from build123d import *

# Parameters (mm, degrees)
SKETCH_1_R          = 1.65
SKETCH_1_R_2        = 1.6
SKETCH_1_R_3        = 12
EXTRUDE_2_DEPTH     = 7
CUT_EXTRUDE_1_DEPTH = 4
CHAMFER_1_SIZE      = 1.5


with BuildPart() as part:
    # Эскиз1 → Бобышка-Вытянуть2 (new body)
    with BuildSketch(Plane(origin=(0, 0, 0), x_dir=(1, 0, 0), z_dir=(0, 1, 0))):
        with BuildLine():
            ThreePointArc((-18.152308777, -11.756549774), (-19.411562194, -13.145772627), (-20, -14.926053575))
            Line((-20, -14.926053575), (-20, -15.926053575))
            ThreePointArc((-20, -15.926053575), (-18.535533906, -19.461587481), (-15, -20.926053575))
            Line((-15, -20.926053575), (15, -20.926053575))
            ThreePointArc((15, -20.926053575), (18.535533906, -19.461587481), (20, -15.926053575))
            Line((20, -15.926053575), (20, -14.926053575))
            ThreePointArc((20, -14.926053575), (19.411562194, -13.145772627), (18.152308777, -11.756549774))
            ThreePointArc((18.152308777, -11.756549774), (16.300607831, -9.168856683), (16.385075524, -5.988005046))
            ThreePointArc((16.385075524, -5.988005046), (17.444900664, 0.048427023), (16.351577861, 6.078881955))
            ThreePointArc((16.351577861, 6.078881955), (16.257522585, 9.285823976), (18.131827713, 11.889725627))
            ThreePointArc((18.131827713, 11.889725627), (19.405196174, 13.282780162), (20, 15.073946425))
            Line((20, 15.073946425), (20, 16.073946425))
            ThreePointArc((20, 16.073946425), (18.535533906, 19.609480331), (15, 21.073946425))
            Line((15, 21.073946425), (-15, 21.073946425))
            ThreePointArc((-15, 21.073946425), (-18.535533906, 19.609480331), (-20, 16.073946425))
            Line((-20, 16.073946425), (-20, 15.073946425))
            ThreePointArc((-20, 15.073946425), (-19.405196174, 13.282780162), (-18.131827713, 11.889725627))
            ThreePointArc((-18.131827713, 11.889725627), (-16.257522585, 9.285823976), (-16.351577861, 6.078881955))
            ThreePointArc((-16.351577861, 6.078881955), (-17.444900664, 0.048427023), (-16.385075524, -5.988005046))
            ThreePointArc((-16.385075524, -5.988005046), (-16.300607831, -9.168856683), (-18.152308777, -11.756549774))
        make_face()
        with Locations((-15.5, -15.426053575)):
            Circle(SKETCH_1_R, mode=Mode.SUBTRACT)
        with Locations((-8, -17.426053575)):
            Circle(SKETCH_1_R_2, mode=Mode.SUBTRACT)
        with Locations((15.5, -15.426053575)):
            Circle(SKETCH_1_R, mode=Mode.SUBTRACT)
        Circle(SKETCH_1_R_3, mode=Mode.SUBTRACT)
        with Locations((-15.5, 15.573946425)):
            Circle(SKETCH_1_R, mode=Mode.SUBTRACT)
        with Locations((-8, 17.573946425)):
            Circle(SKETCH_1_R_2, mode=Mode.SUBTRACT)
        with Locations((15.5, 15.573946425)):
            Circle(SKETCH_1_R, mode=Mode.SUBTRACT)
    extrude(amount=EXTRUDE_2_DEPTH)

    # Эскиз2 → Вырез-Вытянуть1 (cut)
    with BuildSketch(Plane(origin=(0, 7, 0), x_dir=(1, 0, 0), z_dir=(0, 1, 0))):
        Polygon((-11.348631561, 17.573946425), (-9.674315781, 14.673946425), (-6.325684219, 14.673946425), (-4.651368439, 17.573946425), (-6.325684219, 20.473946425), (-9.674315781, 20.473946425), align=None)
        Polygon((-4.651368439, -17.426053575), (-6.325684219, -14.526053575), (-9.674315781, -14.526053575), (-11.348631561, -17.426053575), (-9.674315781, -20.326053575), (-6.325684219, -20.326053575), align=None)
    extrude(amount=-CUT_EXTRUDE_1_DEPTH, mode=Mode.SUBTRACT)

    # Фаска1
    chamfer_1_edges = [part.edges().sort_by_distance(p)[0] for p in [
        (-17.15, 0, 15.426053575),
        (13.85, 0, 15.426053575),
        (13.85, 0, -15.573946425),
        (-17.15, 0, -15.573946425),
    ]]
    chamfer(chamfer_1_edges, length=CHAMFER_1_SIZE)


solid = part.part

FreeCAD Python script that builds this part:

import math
import FreeCAD as App
import Part
import Sketcher
from FreeCAD import Vector
Q = App.Units.Quantity


def edges_at(feature, points):
    """Names of the edges that pass closest to the given points."""
    edges = feature.Shape.Edges
    near = lambda p: min(range(len(edges)), key=lambda i: edges[i].distToShape(Part.Vertex(*p))[0])
    return sorted({f"Edge{near(p) + 1}" for p in points})

doc = App.newDocument("Part")
params = doc.addObject("Spreadsheet::Sheet", "Params")
for row, (alias, value) in enumerate([
    ("sketch1_diameter", "24 mm"),
    ("sketch1_radius", "5 mm"),
    ("sketch1_diameter2", "3.3 mm"),
    ("sketch1_diameter3", "3.2 mm"),
    ("sketch1_width", "30 mm"),
    ("pad1_length", "7 mm"),
    ("pocket1_length", "4 mm"),
    ("chamfer_size", "1.5 mm"),
], start=1):
    params.set(f"A{row}", alias)
    params.set(f"B{row}", "=" + value)
    params.setAlias(f"B{row}", alias)

body = doc.addObject("PartDesign::Body", "Body")

sketch1 = body.newObject("Sketcher::SketchObject", "Sketch")
sketch1.AttachmentSupport = (doc.getObject("XZ_Plane"), [""])
sketch1.MapMode = "FlatFace"
sketch1.addGeometry(Part.ArcOfCircle(Part.Circle(Vector(-15.5, 15.4, 0), Vector(0, 0, 1), 4.5), math.radians(-174), math.radians(-126)), False)
sketch1.addGeometry(Part.LineSegment(Vector(-20, 14.9, 0), Vector(-20, 15.9, 0)), False)
sketch1.addGeometry(Part.ArcOfCircle(Part.Circle(Vector(-15, 15.9, 0), Vector(0, 0, 1), 5), math.radians(90), math.radians(180)), False)
sketch1.addGeometry(Part.LineSegment(Vector(-15, 20.9, 0), Vector(15, 20.9, 0)), False)
sketch1.addGeometry(Part.ArcOfCircle(Part.Circle(Vector(15, 15.9, 0), Vector(0, 0, 1), 5), math.radians(0), math.radians(90)), False)
sketch1.addGeometry(Part.LineSegment(Vector(20, 15.9, 0), Vector(20, 14.9, 0)), False)
sketch1.addGeometry(Part.ArcOfCircle(Part.Circle(Vector(15.5, 15.4, 0), Vector(0, 0, 1), 4.5), math.radians(-54), math.radians(-6)), False)
sketch1.addGeometry(Part.ArcOfCircle(Part.Circle(Vector(21.1, 7.7, 0), Vector(0, 0, 1), 5), math.radians(126), math.radians(200)), False)
sketch1.addGeometry(Part.ArcOfCircle(Part.Circle(Vector(0, 0, 0), Vector(0, 0, 1), 17.4), math.radians(-20), math.radians(20)), False)
sketch1.addGeometry(Part.ArcOfCircle(Part.Circle(Vector(21, -7.8, 0), Vector(0, 0, 1), 5), math.radians(160), math.radians(234)), False)
sketch1.addGeometry(Part.ArcOfCircle(Part.Circle(Vector(15.5, -15.6, 0), Vector(0, 0, 1), 4.5), math.radians(6), math.radians(54)), False)
sketch1.addGeometry(Part.LineSegment(Vector(20, -15.1, 0), Vector(20, -16.1, 0)), False)
sketch1.addGeometry(Part.ArcOfCircle(Part.Circle(Vector(15, -16.1, 0), Vector(0, 0, 1), 5), math.radians(-90), math.radians(0)), False)
sketch1.addGeometry(Part.LineSegment(Vector(15, -21.1, 0), Vector(-15, -21.1, 0)), False)
sketch1.addGeometry(Part.ArcOfCircle(Part.Circle(Vector(-15, -16.1, 0), Vector(0, 0, 1), 5), math.radians(180), math.radians(270)), False)
sketch1.addGeometry(Part.LineSegment(Vector(-20, -16.1, 0), Vector(-20, -15.1, 0)), False)
sketch1.addGeometry(Part.ArcOfCircle(Part.Circle(Vector(-15.5, -15.6, 0), Vector(0, 0, 1), 4.5), math.radians(126), math.radians(174)), False)
sketch1.addGeometry(Part.ArcOfCircle(Part.Circle(Vector(-21, -7.8, 0), Vector(0, 0, 1), 5), math.radians(-54), math.radians(20)), False)
sketch1.addGeometry(Part.ArcOfCircle(Part.Circle(Vector(0, 0, 0), Vector(0, 0, 1), 17.4), math.radians(160), math.radians(200)), False)
sketch1.addGeometry(Part.ArcOfCircle(Part.Circle(Vector(-21.1, 7.7, 0), Vector(0, 0, 1), 5), math.radians(-20), math.radians(54)), False)
sketch1.addGeometry(Part.Circle(Vector(-15.5, 15.4, 0), Vector(0, 0, 1), 1.6), False)
sketch1.addGeometry(Part.Circle(Vector(-8, 17.4, 0), Vector(0, 0, 1), 1.6), False)
sketch1.addGeometry(Part.Circle(Vector(15.5, 15.4, 0), Vector(0, 0, 1), 1.6), False)
sketch1.addGeometry(Part.Circle(Vector(0, 0, 0), Vector(0, 0, 1), 12), False)
sketch1.addGeometry(Part.Circle(Vector(-15.5, -15.6, 0), Vector(0, 0, 1), 1.6), False)
sketch1.addGeometry(Part.Circle(Vector(-8, -17.6, 0), Vector(0, 0, 1), 1.6), False)
sketch1.addGeometry(Part.Circle(Vector(15.5, -15.6, 0), Vector(0, 0, 1), 1.6), False)
sketch1.addConstraint(Sketcher.Constraint("Coincident", 0, 1, 1, 1))
sketch1.addConstraint(Sketcher.Constraint("Tangent", 1, 2, 2, 2))
sketch1.addConstraint(Sketcher.Constraint("Tangent", 2, 1, 3, 1))
sketch1.addConstraint(Sketcher.Constraint("Tangent", 3, 2, 4, 2))
sketch1.addConstraint(Sketcher.Constraint("Tangent", 4, 1, 5, 1))
sketch1.addConstraint(Sketcher.Constraint("Coincident", 5, 2, 6, 2))
sketch1.addConstraint(Sketcher.Constraint("Tangent", 6, 1, 7, 1))
sketch1.addConstraint(Sketcher.Constraint("Tangent", 7, 2, 8, 2))
sketch1.addConstraint(Sketcher.Constraint("Tangent", 8, 1, 9, 1))
sketch1.addConstraint(Sketcher.Constraint("Tangent", 9, 2, 10, 2))
sketch1.addConstraint(Sketcher.Constraint("Coincident", 10, 1, 11, 1))
sketch1.addConstraint(Sketcher.Constraint("Tangent", 11, 2, 12, 2))
sketch1.addConstraint(Sketcher.Constraint("Tangent", 12, 1, 13, 1))
sketch1.addConstraint(Sketcher.Constraint("Tangent", 13, 2, 14, 2))
sketch1.addConstraint(Sketcher.Constraint("Tangent", 14, 1, 15, 1))
sketch1.addConstraint(Sketcher.Constraint("Coincident", 15, 2, 16, 2))
sketch1.addConstraint(Sketcher.Constraint("Tangent", 16, 1, 17, 1))
sketch1.addConstraint(Sketcher.Constraint("Tangent", 17, 2, 18, 2))
sketch1.addConstraint(Sketcher.Constraint("Tangent", 18, 1, 19, 1))
sketch1.addConstraint(Sketcher.Constraint("Tangent", 19, 2, 0, 2))
sketch1.addConstraint(Sketcher.Constraint("Vertical", 1))
sketch1.addConstraint(Sketcher.Constraint("Horizontal", 3))
sketch1.addConstraint(Sketcher.Constraint("Vertical", 5))
sketch1.addConstraint(Sketcher.Constraint("Vertical", 11))
sketch1.addConstraint(Sketcher.Constraint("Horizontal", 13))
sketch1.addConstraint(Sketcher.Constraint("Vertical", 15))
sketch1.addConstraint(Sketcher.Constraint("Coincident", 8, 3, -1, 1))
sketch1.addConstraint(Sketcher.Constraint("Coincident", 18, 3, -1, 1))
sketch1.addConstraint(Sketcher.Constraint("Coincident", 23, 3, -1, 1))
sketch1.addConstraint(Sketcher.Constraint("Coincident", 20, 3, 0, 3))
sketch1.addConstraint(Sketcher.Constraint("Coincident", 22, 3, 6, 3))
sketch1.addConstraint(Sketcher.Constraint("Coincident", 24, 3, 16, 3))
sketch1.addConstraint(Sketcher.Constraint("Coincident", 26, 3, 10, 3))
sketch1.addConstraint(Sketcher.Constraint("Equal", 2, 4))
sketch1.addConstraint(Sketcher.Constraint("Equal", 0, 6))
sketch1.addConstraint(Sketcher.Constraint("Equal", 4, 7))
sketch1.addConstraint(Sketcher.Constraint("Equal", 7, 9))
sketch1.addConstraint(Sketcher.Constraint("Equal", 6, 10))
sketch1.addConstraint(Sketcher.Constraint("Equal", 9, 12))
sketch1.addConstraint(Sketcher.Constraint("Equal", 12, 14))
sketch1.addConstraint(Sketcher.Constraint("Equal", 10, 16))
sketch1.addConstraint(Sketcher.Constraint("Equal", 14, 17))
sketch1.addConstraint(Sketcher.Constraint("Equal", 8, 18))
sketch1.addConstraint(Sketcher.Constraint("Equal", 17, 19))
sketch1.addConstraint(Sketcher.Constraint("Equal", 20, 22))
sketch1.addConstraint(Sketcher.Constraint("Equal", 22, 24))
sketch1.addConstraint(Sketcher.Constraint("Equal", 21, 25))
sketch1.addConstraint(Sketcher.Constraint("Equal", 24, 26))
sketch1.addConstraint(Sketcher.Constraint("Symmetric", 0, 3, 6, 3, -2))
sketch1.addConstraint(Sketcher.Constraint("Symmetric", 10, 3, 16, 3, -2))
sketch1.addConstraint(Sketcher.Constraint("Horizontal", 0, 1, 5, 2))
sketch1.addConstraint(Sketcher.Constraint("Horizontal", 10, 1, 15, 2))
sketch1.addConstraint(Sketcher.Constraint("Vertical", 6, 3, 10, 3))
sketch1.addConstraint(Sketcher.Constraint("Vertical", 4, 3, 12, 3))
sketch1.addConstraint(Sketcher.Constraint("Vertical", 21, 3, 25, 3))
sketch1.addConstraint(Sketcher.Constraint("Equal", 5, 11))
sketch1.addConstraint(Sketcher.Constraint("Diameter", 23, Q("24 mm")))
sketch1.addConstraint(Sketcher.Constraint("Radius", 2, Q("5 mm")))
sketch1.addConstraint(Sketcher.Constraint("Diameter", 20, Q("3.3 mm")))
sketch1.addConstraint(Sketcher.Constraint("Diameter", 21, Q("3.2 mm")))
sketch1.addConstraint(Sketcher.Constraint("DistanceX", 3, 1, 3, 2, Q("30 mm")))
sketch1.addConstraint(Sketcher.Constraint("DistanceY", 1, 1, 1, 2, Q("1 mm")))
sketch1.addConstraint(Sketcher.Constraint("DistanceX", 21, 3, -1, 1, Q("8 mm")))
sketch1.addConstraint(Sketcher.Constraint("DistanceX", 0, 3, 6, 3, Q("31 mm")))
sketch1.addConstraint(Sketcher.Constraint("DistanceY", 10, 3, 6, 3, Q("31 mm")))
sketch1.addConstraint(Sketcher.Constraint("DistanceY", 14, 3, 2, 3, Q("32 mm")))
sketch1.addConstraint(Sketcher.Constraint("DistanceY", 20, 3, 21, 3, Q("2 mm")))
sketch1.addConstraint(Sketcher.Constraint("DistanceY", 25, 3, 24, 3, Q("2 mm")))
sketch1.addConstraint(Sketcher.Constraint("Radius", 8, Q("17.444968 mm")))
sketch1.addConstraint(Sketcher.Constraint("DistanceX", 9, 3, 7, 3, Q("0.043099 mm")))
sketch1.setExpression("Constraints[56]", "Params.sketch1_diameter")
sketch1.setExpression("Constraints[57]", "Params.sketch1_radius")
sketch1.setExpression("Constraints[58]", "Params.sketch1_diameter2")
sketch1.setExpression("Constraints[59]", "Params.sketch1_diameter3")
sketch1.setExpression("Constraints[60]", "Params.sketch1_width")
pad1 = body.newObject("PartDesign::Pad", "Pad")
pad1.Profile = sketch1
pad1.setExpression("Length", "Params.pad1_length")
pad1.Reversed = True

sketch2 = body.newObject("Sketcher::SketchObject", "Sketch001")
sketch2.AttachmentSupport = (doc.getObject("XZ_Plane"), [""])
sketch2.MapMode = "FlatFace"
sketch2.AttachmentOffset = App.Placement(Vector(0, 0, -7), App.Rotation())
sketch2.addGeometry(Part.LineSegment(Vector(-11.3, -17.6, 0), Vector(-9.7, -14.7, 0)), False)
sketch2.addGeometry(Part.LineSegment(Vector(-9.7, -14.7, 0), Vector(-6.3, -14.7, 0)), False)
sketch2.addGeometry(Part.LineSegment(Vector(-6.3, -14.7, 0), Vector(-4.7, -17.6, 0)), False)
sketch2.addGeometry(Part.LineSegment(Vector(-4.7, -17.6, 0), Vector(-6.3, -20.5, 0)), False)
sketch2.addGeometry(Part.LineSegment(Vector(-6.3, -20.5, 0), Vector(-9.7, -20.5, 0)), False)
sketch2.addGeometry(Part.LineSegment(Vector(-9.7, -20.5, 0), Vector(-11.3, -17.6, 0)), False)
sketch2.addGeometry(Part.LineSegment(Vector(-4.7, 17.4, 0), Vector(-6.3, 14.5, 0)), False)
sketch2.addGeometry(Part.LineSegment(Vector(-6.3, 14.5, 0), Vector(-9.7, 14.5, 0)), False)
sketch2.addGeometry(Part.LineSegment(Vector(-9.7, 14.5, 0), Vector(-11.3, 17.4, 0)), False)
sketch2.addGeometry(Part.LineSegment(Vector(-11.3, 17.4, 0), Vector(-9.7, 20.3, 0)), False)
sketch2.addGeometry(Part.LineSegment(Vector(-9.7, 20.3, 0), Vector(-6.3, 20.3, 0)), False)
sketch2.addGeometry(Part.LineSegment(Vector(-6.3, 20.3, 0), Vector(-4.7, 17.4, 0)), False)
sketch2.addConstraint(Sketcher.Constraint("Coincident", 0, 2, 1, 1))
sketch2.addConstraint(Sketcher.Constraint("Coincident", 1, 2, 2, 1))
sketch2.addConstraint(Sketcher.Constraint("Coincident", 2, 2, 3, 1))
sketch2.addConstraint(Sketcher.Constraint("Coincident", 3, 2, 4, 1))
sketch2.addConstraint(Sketcher.Constraint("Coincident", 4, 2, 5, 1))
sketch2.addConstraint(Sketcher.Constraint("Coincident", 5, 2, 0, 1))
sketch2.addConstraint(Sketcher.Constraint("Coincident", 6, 2, 7, 1))
sketch2.addConstraint(Sketcher.Constraint("Coincident", 7, 2, 8, 1))
sketch2.addConstraint(Sketcher.Constraint("Coincident", 8, 2, 9, 1))
sketch2.addConstraint(Sketcher.Constraint("Coincident", 9, 2, 10, 1))
sketch2.addConstraint(Sketcher.Constraint("Coincident", 10, 2, 11, 1))
sketch2.addConstraint(Sketcher.Constraint("Coincident", 11, 2, 6, 1))
sketch2.addConstraint(Sketcher.Constraint("Horizontal", 1))
sketch2.addConstraint(Sketcher.Constraint("Horizontal", 4))
sketch2.addConstraint(Sketcher.Constraint("Horizontal", 7))
sketch2.addConstraint(Sketcher.Constraint("Horizontal", 10))
sketch2.addConstraint(Sketcher.Constraint("Parallel", 0, 3))
sketch2.addConstraint(Sketcher.Constraint("Parallel", 2, 5))
sketch2.addConstraint(Sketcher.Constraint("Parallel", 3, 6))
sketch2.addConstraint(Sketcher.Constraint("Parallel", 5, 8))
sketch2.addConstraint(Sketcher.Constraint("Parallel", 6, 9))
sketch2.addConstraint(Sketcher.Constraint("Parallel", 8, 11))
sketch2.addConstraint(Sketcher.Constraint("Horizontal", 2, 2, 5, 2))
sketch2.addConstraint(Sketcher.Constraint("Horizontal", 8, 2, 11, 2))
sketch2.addConstraint(Sketcher.Constraint("Vertical", 1, 2, 3, 2))
sketch2.addConstraint(Sketcher.Constraint("Vertical", 0, 2, 4, 2))
sketch2.addConstraint(Sketcher.Constraint("Vertical", 3, 2, 6, 2))
sketch2.addConstraint(Sketcher.Constraint("Vertical", 4, 2, 7, 2))
sketch2.addConstraint(Sketcher.Constraint("Vertical", 5, 2, 8, 2))
sketch2.addConstraint(Sketcher.Constraint("Vertical", 7, 2, 9, 2))
sketch2.addConstraint(Sketcher.Constraint("Angle", 0, Q("60 deg")))
sketch2.addConstraint(Sketcher.Constraint("DistanceY", 3, 2, 6, 2, Q("35 mm")))
sketch2.addConstraint(Sketcher.Constraint("DistanceY", 2, 2, 1, 2, Q("2.9 mm")))
sketch2.addConstraint(Sketcher.Constraint("DistanceX", 1, 1, 1, 2, Q("3.348632 mm")))
sketch2.addConstraint(Sketcher.Constraint("DistanceX", 2, 2, -1, 1, Q("4.651368 mm")))
sketch2.addConstraint(Sketcher.Constraint("DistanceY", 0, 2, -1, 1, Q("14.673946 mm")))
pocket1 = body.newObject("PartDesign::Pocket", "Pocket")
pocket1.Profile = sketch2
pocket1.setExpression("Length", "Params.pocket1_length")
pocket1.Reversed = True
doc.recompute()

chamfer = body.newObject("PartDesign::Chamfer", "Chamfer")
chamfer.Base = (pocket1, edges_at(pocket1, [
    (-17.15, 0, 15.426),
    (13.85, 0, 15.426),
    (13.85, 0, -15.574),
    (-17.15, 0, -15.574),
]))
chamfer.setExpression("Size", "Params.chamfer_size")

doc.recompute()
